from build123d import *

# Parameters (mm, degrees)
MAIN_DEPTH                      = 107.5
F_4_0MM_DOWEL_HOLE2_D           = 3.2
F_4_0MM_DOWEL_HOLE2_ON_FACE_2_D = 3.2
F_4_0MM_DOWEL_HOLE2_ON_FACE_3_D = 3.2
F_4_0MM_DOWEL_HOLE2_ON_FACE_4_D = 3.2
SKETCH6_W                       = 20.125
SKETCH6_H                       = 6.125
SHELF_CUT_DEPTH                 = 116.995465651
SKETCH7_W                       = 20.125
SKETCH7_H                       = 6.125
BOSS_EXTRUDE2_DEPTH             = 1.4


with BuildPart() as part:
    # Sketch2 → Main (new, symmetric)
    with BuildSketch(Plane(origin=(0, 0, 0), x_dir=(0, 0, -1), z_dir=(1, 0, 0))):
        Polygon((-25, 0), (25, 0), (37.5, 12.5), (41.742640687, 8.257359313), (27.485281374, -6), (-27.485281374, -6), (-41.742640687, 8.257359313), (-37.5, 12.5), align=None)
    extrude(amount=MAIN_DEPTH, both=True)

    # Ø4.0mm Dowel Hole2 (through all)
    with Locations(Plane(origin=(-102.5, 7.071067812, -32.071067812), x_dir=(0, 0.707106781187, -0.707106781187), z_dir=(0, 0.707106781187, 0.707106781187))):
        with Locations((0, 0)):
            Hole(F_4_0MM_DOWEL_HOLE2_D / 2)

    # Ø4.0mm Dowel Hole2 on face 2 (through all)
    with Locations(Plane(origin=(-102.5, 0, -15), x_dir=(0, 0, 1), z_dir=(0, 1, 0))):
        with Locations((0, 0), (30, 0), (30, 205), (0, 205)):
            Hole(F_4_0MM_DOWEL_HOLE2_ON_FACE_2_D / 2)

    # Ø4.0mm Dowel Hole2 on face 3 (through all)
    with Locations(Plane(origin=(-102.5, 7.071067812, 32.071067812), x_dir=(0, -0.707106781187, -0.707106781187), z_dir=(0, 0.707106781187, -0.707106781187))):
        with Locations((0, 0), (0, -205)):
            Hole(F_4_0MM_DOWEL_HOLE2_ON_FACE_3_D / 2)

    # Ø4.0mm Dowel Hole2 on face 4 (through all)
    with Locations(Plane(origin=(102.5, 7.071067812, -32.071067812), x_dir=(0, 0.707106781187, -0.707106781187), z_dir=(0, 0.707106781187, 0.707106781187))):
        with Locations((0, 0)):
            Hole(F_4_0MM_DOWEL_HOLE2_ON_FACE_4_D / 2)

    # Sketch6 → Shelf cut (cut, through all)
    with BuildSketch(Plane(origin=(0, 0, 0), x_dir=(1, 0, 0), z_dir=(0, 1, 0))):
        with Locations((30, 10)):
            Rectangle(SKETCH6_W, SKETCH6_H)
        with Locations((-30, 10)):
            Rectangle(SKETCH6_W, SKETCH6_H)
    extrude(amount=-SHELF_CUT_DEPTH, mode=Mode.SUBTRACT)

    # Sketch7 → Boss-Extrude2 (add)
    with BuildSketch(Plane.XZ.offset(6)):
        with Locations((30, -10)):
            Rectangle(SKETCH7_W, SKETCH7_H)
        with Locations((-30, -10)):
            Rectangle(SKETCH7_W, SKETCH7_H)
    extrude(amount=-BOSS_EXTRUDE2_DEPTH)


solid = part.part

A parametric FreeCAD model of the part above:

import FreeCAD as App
import Part
import Sketcher
Q = App.Units.Quantity

doc = App.newDocument("Part")
body = doc.addObject("PartDesign::Body", "Body")

sketch1 = body.newObject("Sketcher::SketchObject", "Sketch")
sketch1.AttachmentSupport = (doc.getObject("YZ_Plane"), [""])
sketch1.MapMode = "FlatFace"
sketch1.addGeometry(Part.LineSegment(App.Vector(0, -25, 0), App.Vector(0, 25, 0)), False)
sketch1.addGeometry(Part.LineSegment(App.Vector(0, 25, 0), App.Vector(12, 38, 0)), False)
sketch1.addGeometry(Part.LineSegment(App.Vector(12, 38, 0), App.Vector(8, 42, 0)), False)
sketch1.addGeometry(Part.LineSegment(App.Vector(8, 42, 0), App.Vector(-6, 27, 0)), False)
sketch1.addGeometry(Part.LineSegment(App.Vector(-6, 27, 0), App.Vector(-6, -27, 0)), False)
sketch1.addGeometry(Part.LineSegment(App.Vector(-6, -27, 0), App.Vector(8, -42, 0)), False)
sketch1.addGeometry(Part.LineSegment(App.Vector(8, -42, 0), App.Vector(12, -38, 0)), False)
sketch1.addGeometry(Part.LineSegment(App.Vector(12, -38, 0), App.Vector(0, -25, 0)), False)
sketch1.addConstraint(Sketcher.Constraint("Coincident", 0, 2, 1, 1))
sketch1.addConstraint(Sketcher.Constraint("Coincident", 1, 2, 2, 1))
sketch1.addConstraint(Sketcher.Constraint("Coincident", 2, 2, 3, 1))
sketch1.addConstraint(Sketcher.Constraint("Coincident", 3, 2, 4, 1))
sketch1.addConstraint(Sketcher.Constraint("Coincident", 4, 2, 5, 1))
sketch1.addConstraint(Sketcher.Constraint("Coincident", 5, 2, 6, 1))
sketch1.addConstraint(Sketcher.Constraint("Coincident", 6, 2, 7, 1))
sketch1.addConstraint(Sketcher.Constraint("Coincident", 7, 2, 0, 1))
sketch1.addConstraint(Sketcher.Constraint("Vertical", 0))
sketch1.addConstraint(Sketcher.Constraint("Vertical", 4))
sketch1.addConstraint(Sketcher.Constraint("Symmetric", 0, 2, 7, 2, -1, 1))
sketch1.addConstraint(Sketcher.Constraint("Symmetric", 2, 2, 5, 2, -1))
sketch1.addConstraint(Sketcher.Constraint("Symmetric", 1, 2, 6, 2, -1))
sketch1.addConstraint(Sketcher.Constraint("Perpendicular", 1, 2))
sketch1.addConstraint(Sketcher.Constraint("Perpendicular", 2, 3))
sketch1.addConstraint(Sketcher.Constraint("Perpendicular", 3, 5))
sketch1.addConstraint(Sketcher.Constraint("Perpendicular", 5, 6))
sketch1.addConstraint(Sketcher.Constraint("DistanceY", 0, 1, 0, 2, Q("50 mm")))
sketch1.addConstraint(Sketcher.Constraint("Distance", 2, Q("6 mm")))
sketch1.addConstraint(Sketcher.Constraint("DistanceX", 3, 2, -1, 1, Q("6 mm")))
sketch1.addConstraint(Sketcher.Constraint("DistanceY", 6, 2, 1, 2, Q("75 mm")))
pad1 = body.newObject("PartDesign::Pad", "Pad")
pad1.Profile = sketch1
pad1.Length = 215
pad1.Midplane = True

sketch2 = body.newObject("Sketcher::SketchObject", "Sketch001")
sketch2.Placement = App.Placement(App.Vector(0, -12.5, -12.5), App.Rotation(App.Vector(0, 0.707106781, -0.707106781), App.Vector(-0.999999999, 0, 0), App.Vector(0, 0.707106781, 0.707106781), "ZXY"))
sketch2.addGeometry(Part.Circle(App.Vector(27.7, 102.5, 0), App.Vector(0, 0, 1), 1.6), False)
sketch2.addConstraint(Sketcher.Constraint("Diameter", 0, Q("3.2 mm")))
sketch2.addConstraint(Sketcher.Constraint("DistanceY", -1, 1, 0, 3, Q("102.5 mm")))
sketch2.addConstraint(Sketcher.Constraint("DistanceX", -1, 1, 0, 3, Q("27.67767 mm")))
doc.recompute()
hole = body.newObject("PartDesign::Hole", "Hole")
hole.Profile = sketch2
hole.ThreadType = "None"
hole.Diameter = 3.2
hole.DepthType = "ThroughAll"

sketch3 = body.newObject("Sketcher::SketchObject", "Sketch002")
sketch3.AttachmentSupport = (doc.getObject("XZ_Plane"), [""])
sketch3.MapMode = "FlatFace"
sketch3.addGeometry(Part.Circle(App.Vector(-102.5, -15, 0), App.Vector(0, 0, 1), 1.6), False)
sketch3.addGeometry(Part.Circle(App.Vector(-102.5, 15, 0), App.Vector(0, 0, 1), 1.6), False)
sketch3.addGeometry(Part.Circle(App.Vector(102.5, 15, 0), App.Vector(0, 0, 1), 1.6), False)
sketch3.addGeometry(Part.Circle(App.Vector(102.5, -15, 0), App.Vector(0, 0, 1), 1.6), False)
sketch3.addConstraint(Sketcher.Constraint("Equal", 0, 1))
sketch3.addConstraint(Sketcher.Constraint("Equal", 1, 2))
sketch3.addConstraint(Sketcher.Constraint("Equal", 2, 3))
sketch3.addConstraint(Sketcher.Constraint("Symmetric", 0, 3, 2, 3, -1, 1))
sketch3.addConstraint(Sketcher.Constraint("Symmetric", 1, 3, 3, 3, -1, 1))
sketch3.addConstraint(Sketcher.Constraint("Symmetric", 1, 3, 2, 3, -2))
sketch3.addConstraint(Sketcher.Constraint("Diameter", 0, Q("3.2 mm")))
sketch3.addConstraint(Sketcher.Constraint("DistanceY", 0, 3, -1, 1, Q("15 mm")))
sketch3.addConstraint(Sketcher.Constraint("DistanceX", 1, 3, 2, 3, Q("205 mm")))
doc.recompute()
hole2 = body.newObject("PartDesign::Hole", "Hole001")
hole2.Profile = sketch3
hole2.ThreadType = "None"
hole2.Diameter = 3.2
hole2.DepthType = "ThroughAll"
hole2.Reversed = True

sketch4 = body.newObject("Sketcher::SketchObject", "Sketch003")
sketch4.Placement = App.Placement(App.Vector(0, -12.5, 12.5), App.Rotation(App.Vector(0, -0.707106781, -0.707106781), App.Vector(-0.999999999, 0, 0), App.Vector(0, 0.707106781, -0.707106781), "ZXY"))
sketch4.addGeometry(Part.Circle(App.Vector(-27.7, 102.5, 0), App.Vector(0, 0, 1), 1.6), False)
sketch4.addGeometry(Part.Circle(App.Vector(-27.7, -102.5, 0), App.Vector(0, 0, 1), 1.6), False)
sketch4.addConstraint(Sketcher.Constraint("Equal", 0, 1))
sketch4.addConstraint(Sketcher.Constraint("Symmetric", 0, 3, 1, 3, -1))
sketch4.addConstraint(Sketcher.Constraint("Diameter", 0, Q("3.2 mm")))
sketch4.addConstraint(Sketcher.Constraint("DistanceY", 1, 3, 0, 3, Q("205 mm")))
sketch4.addConstraint(Sketcher.Constraint("DistanceX", 0, 3, -1, 1, Q("27.67767 mm")))
doc.recompute()
hole3 = body.newObject("PartDesign::Hole", "Hole002")
hole3.Profile = sketch4
hole3.ThreadType = "None"
hole3.Diameter = 3.2
hole3.DepthType = "ThroughAll"

sketch5 = body.newObject("Sketcher::SketchObject", "Sketch004")
sketch5.Placement = App.Placement(App.Vector(0, -12.5, -12.5), App.Rotation(App.Vector(0, 0.707106781, -0.707106781), App.Vector(-0.999999999, 0, 0), App.Vector(0, 0.707106781, 0.707106781), "ZXY"))
sketch5.addGeometry(Part.Circle(App.Vector(27.7, -102.5, 0), App.Vector(0, 0, 1), 1.6), False)
sketch5.addConstraint(Sketcher.Constraint("Diameter", 0, Q("3.2 mm")))
sketch5.addConstraint(Sketcher.Constraint("DistanceY", 0, 3, -1, 1, Q("102.5 mm")))
sketch5.addConstraint(Sketcher.Constraint("DistanceX", -1, 1, 0, 3, Q("27.67767 mm")))
doc.recompute()
hole4 = body.newObject("PartDesign::Hole", "Hole003")
hole4.Profile = sketch5
hole4.ThreadType = "None"
hole4.Diameter = 3.2
hole4.DepthType = "ThroughAll"

sketch6 = body.newObject("Sketcher::SketchObject", "Sketch005")
sketch6.AttachmentSupport = (doc.getObject("XZ_Plane"), [""])
sketch6.MapMode = "FlatFace"
sketch6.addGeometry(Part.LineSegment(App.Vector(20, -13, 0), App.Vector(20, -7, 0)), False)
sketch6.addGeometry(Part.LineSegment(App.Vector(20, -7, 0), App.Vector(40, -7, 0)), False)
sketch6.addGeometry(Part.LineSegment(App.Vector(40, -7, 0), App.Vector(40, -13, 0)), False)
sketch6.addGeometry(Part.LineSegment(App.Vector(40, -13, 0), App.Vector(20, -13, 0)), False)
sketch6.addGeometry(Part.LineSegment(App.Vector(-40, -13, 0), App.Vector(-40, -7, 0)), False)
sketch6.addGeometry(Part.LineSegment(App.Vector(-40, -7, 0), App.Vector(-20, -7, 0)), False)
sketch6.addGeometry(Part.LineSegment(App.Vector(-20, -7, 0), App.Vector(-20, -13, 0)), False)
sketch6.addGeometry(Part.LineSegment(App.Vector(-20, -13, 0), App.Vector(-40, -13, 0)), False)
sketch6.addConstraint(Sketcher.Constraint("Coincident", 0, 2, 1, 1))
sketch6.addConstraint(Sketcher.Constraint("Coincident", 1, 2, 2, 1))
sketch6.addConstraint(Sketcher.Constraint("Coincident", 2, 2, 3, 1))
sketch6.addConstraint(Sketcher.Constraint("Coincident", 3, 2, 0, 1))
sketch6.addConstraint(Sketcher.Constraint("Coincident", 4, 2, 5, 1))
sketch6.addConstraint(Sketcher.Constraint("Coincident", 5, 2, 6, 1))
sketch6.addConstraint(Sketcher.Constraint("Coincident", 6, 2, 7, 1))
sketch6.addConstraint(Sketcher.Constraint("Coincident", 7, 2, 4, 1))
sketch6.addConstraint(Sketcher.Constraint("Vertical", 0))
sketch6.addConstraint(Sketcher.Constraint("Horizontal", 1))
sketch6.addConstraint(Sketcher.Constraint("Vertical", 2))
sketch6.addConstraint(Sketcher.Constraint("Horizontal", 3))
sketch6.addConstraint(Sketcher.Constraint("Vertical", 4))
sketch6.addConstraint(Sketcher.Constraint("Horizontal", 5))
sketch6.addConstraint(Sketcher.Constraint("Vertical", 6))
sketch6.addConstraint(Sketcher.Constraint("Horizontal", 7))
sketch6.addConstraint(Sketcher.Constraint("Symmetric", 1, 2, 4, 2, -2))
sketch6.addConstraint(Sketcher.Constraint("Symmetric", 3, 2, 6, 2, -2))
sketch6.addConstraint(Sketcher.Constraint("DistanceX", 4, 2, 0, 2, Q("60 mm")))
sketch6.addConstraint(Sketcher.Constraint("DistanceX", 1, 1, 1, 2, Q("20.125 mm")))
sketch6.addConstraint(Sketcher.Constraint("DistanceY", 0, 1, 0, 2, Q("6.125 mm")))
sketch6.addConstraint(Sketcher.Constraint("DistanceY", 0, 2, -1, 1, Q("6.9375 mm")))
pocket1 = body.newObject("PartDesign::Pocket", "Pocket")
pocket1.Profile = sketch6
pocket1.Type = "ThroughAll"
pocket1.Reversed = True

sketch7 = body.newObject("Sketcher::SketchObject", "Sketch006")
sketch7.AttachmentSupport = (doc.getObject("XZ_Plane"), [""])
sketch7.MapMode = "FlatFace"
sketch7.AttachmentOffset = App.Placement(App.Vector(0, 0, 6), App.Rotation())
sketch7.addGeometry(Part.LineSegment(App.Vector(20, -7, 0), App.Vector(20, -13, 0)), False)
sketch7.addGeometry(Part.LineSegment(App.Vector(20, -13, 0), App.Vector(40, -13, 0)), False)
sketch7.addGeometry(Part.LineSegment(App.Vector(40, -13, 0), App.Vector(40, -7, 0)), False)
sketch7.addGeometry(Part.LineSegment(App.Vector(40, -7, 0), App.Vector(20, -7, 0)), False)
sketch7.addGeometry(Part.LineSegment(App.Vector(-40, -7, 0), App.Vector(-40, -13, 0)), False)
sketch7.addGeometry(Part.LineSegment(App.Vector(-40, -13, 0), App.Vector(-20, -13, 0)), False)
sketch7.addGeometry(Part.LineSegment(App.Vector(-20, -13, 0), App.Vector(-20, -7, 0)), False)
sketch7.addGeometry(Part.LineSegment(App.Vector(-20, -7, 0), App.Vector(-40, -7, 0)), False)
sketch7.addConstraint(Sketcher.Constraint("Coincident", 0, 2, 1, 1))
sketch7.addConstraint(Sketcher.Constraint("Coincident", 1, 2, 2, 1))
sketch7.addConstraint(Sketcher.Constraint("Coincident", 2, 2, 3, 1))
sketch7.addConstraint(Sketcher.Constraint("Coincident", 3, 2, 0, 1))
sketch7.addConstraint(Sketcher.Constraint("Coincident", 4, 2, 5, 1))
sketch7.addConstraint(Sketcher.Constraint("Coincident", 5, 2, 6, 1))
sketch7.addConstraint(Sketcher.Constraint("Coincident", 6, 2, 7, 1))
sketch7.addConstraint(Sketcher.Constraint("Coincident", 7, 2, 4, 1))
sketch7.addConstraint(Sketcher.Constraint("Vertical", 0))
sketch7.addConstraint(Sketcher.Constraint("Horizontal", 1))
sketch7.addConstraint(Sketcher.Constraint("Vertical", 2))
sketch7.addConstraint(Sketcher.Constraint("Horizontal", 3))
sketch7.addConstraint(Sketcher.Constraint("Vertical", 4))
sketch7.addConstraint(Sketcher.Constraint("Horizontal", 5))
sketch7.addConstraint(Sketcher.Constraint("Vertical", 6))
sketch7.addConstraint(Sketcher.Constraint("Horizontal", 7))
sketch7.addConstraint(Sketcher.Constraint("Symmetric", 1, 2, 4, 2, -2))
sketch7.addConstraint(Sketcher.Constraint("Symmetric", 3, 2, 6, 2, -2))
sketch7.addConstraint(Sketcher.Constraint("DistanceX", 4, 2, 0, 2, Q("60 mm")))
sketch7.addConstraint(Sketcher.Constraint("DistanceX", 1, 1, 1, 2, Q("20.125 mm")))
sketch7.addConstraint(Sketcher.Constraint("DistanceY", 0, 2, 0, 1, Q("6.125 mm")))
sketch7.addConstraint(Sketcher.Constraint("DistanceY", 0, 2, -1, 1, Q("13.0625 mm")))
pad2 = body.newObject("PartDesign::Pad", "Pad001")
pad2.Profile = sketch7
pad2.Length = 1.4
pad2.Reversed = True

doc.recompute()
